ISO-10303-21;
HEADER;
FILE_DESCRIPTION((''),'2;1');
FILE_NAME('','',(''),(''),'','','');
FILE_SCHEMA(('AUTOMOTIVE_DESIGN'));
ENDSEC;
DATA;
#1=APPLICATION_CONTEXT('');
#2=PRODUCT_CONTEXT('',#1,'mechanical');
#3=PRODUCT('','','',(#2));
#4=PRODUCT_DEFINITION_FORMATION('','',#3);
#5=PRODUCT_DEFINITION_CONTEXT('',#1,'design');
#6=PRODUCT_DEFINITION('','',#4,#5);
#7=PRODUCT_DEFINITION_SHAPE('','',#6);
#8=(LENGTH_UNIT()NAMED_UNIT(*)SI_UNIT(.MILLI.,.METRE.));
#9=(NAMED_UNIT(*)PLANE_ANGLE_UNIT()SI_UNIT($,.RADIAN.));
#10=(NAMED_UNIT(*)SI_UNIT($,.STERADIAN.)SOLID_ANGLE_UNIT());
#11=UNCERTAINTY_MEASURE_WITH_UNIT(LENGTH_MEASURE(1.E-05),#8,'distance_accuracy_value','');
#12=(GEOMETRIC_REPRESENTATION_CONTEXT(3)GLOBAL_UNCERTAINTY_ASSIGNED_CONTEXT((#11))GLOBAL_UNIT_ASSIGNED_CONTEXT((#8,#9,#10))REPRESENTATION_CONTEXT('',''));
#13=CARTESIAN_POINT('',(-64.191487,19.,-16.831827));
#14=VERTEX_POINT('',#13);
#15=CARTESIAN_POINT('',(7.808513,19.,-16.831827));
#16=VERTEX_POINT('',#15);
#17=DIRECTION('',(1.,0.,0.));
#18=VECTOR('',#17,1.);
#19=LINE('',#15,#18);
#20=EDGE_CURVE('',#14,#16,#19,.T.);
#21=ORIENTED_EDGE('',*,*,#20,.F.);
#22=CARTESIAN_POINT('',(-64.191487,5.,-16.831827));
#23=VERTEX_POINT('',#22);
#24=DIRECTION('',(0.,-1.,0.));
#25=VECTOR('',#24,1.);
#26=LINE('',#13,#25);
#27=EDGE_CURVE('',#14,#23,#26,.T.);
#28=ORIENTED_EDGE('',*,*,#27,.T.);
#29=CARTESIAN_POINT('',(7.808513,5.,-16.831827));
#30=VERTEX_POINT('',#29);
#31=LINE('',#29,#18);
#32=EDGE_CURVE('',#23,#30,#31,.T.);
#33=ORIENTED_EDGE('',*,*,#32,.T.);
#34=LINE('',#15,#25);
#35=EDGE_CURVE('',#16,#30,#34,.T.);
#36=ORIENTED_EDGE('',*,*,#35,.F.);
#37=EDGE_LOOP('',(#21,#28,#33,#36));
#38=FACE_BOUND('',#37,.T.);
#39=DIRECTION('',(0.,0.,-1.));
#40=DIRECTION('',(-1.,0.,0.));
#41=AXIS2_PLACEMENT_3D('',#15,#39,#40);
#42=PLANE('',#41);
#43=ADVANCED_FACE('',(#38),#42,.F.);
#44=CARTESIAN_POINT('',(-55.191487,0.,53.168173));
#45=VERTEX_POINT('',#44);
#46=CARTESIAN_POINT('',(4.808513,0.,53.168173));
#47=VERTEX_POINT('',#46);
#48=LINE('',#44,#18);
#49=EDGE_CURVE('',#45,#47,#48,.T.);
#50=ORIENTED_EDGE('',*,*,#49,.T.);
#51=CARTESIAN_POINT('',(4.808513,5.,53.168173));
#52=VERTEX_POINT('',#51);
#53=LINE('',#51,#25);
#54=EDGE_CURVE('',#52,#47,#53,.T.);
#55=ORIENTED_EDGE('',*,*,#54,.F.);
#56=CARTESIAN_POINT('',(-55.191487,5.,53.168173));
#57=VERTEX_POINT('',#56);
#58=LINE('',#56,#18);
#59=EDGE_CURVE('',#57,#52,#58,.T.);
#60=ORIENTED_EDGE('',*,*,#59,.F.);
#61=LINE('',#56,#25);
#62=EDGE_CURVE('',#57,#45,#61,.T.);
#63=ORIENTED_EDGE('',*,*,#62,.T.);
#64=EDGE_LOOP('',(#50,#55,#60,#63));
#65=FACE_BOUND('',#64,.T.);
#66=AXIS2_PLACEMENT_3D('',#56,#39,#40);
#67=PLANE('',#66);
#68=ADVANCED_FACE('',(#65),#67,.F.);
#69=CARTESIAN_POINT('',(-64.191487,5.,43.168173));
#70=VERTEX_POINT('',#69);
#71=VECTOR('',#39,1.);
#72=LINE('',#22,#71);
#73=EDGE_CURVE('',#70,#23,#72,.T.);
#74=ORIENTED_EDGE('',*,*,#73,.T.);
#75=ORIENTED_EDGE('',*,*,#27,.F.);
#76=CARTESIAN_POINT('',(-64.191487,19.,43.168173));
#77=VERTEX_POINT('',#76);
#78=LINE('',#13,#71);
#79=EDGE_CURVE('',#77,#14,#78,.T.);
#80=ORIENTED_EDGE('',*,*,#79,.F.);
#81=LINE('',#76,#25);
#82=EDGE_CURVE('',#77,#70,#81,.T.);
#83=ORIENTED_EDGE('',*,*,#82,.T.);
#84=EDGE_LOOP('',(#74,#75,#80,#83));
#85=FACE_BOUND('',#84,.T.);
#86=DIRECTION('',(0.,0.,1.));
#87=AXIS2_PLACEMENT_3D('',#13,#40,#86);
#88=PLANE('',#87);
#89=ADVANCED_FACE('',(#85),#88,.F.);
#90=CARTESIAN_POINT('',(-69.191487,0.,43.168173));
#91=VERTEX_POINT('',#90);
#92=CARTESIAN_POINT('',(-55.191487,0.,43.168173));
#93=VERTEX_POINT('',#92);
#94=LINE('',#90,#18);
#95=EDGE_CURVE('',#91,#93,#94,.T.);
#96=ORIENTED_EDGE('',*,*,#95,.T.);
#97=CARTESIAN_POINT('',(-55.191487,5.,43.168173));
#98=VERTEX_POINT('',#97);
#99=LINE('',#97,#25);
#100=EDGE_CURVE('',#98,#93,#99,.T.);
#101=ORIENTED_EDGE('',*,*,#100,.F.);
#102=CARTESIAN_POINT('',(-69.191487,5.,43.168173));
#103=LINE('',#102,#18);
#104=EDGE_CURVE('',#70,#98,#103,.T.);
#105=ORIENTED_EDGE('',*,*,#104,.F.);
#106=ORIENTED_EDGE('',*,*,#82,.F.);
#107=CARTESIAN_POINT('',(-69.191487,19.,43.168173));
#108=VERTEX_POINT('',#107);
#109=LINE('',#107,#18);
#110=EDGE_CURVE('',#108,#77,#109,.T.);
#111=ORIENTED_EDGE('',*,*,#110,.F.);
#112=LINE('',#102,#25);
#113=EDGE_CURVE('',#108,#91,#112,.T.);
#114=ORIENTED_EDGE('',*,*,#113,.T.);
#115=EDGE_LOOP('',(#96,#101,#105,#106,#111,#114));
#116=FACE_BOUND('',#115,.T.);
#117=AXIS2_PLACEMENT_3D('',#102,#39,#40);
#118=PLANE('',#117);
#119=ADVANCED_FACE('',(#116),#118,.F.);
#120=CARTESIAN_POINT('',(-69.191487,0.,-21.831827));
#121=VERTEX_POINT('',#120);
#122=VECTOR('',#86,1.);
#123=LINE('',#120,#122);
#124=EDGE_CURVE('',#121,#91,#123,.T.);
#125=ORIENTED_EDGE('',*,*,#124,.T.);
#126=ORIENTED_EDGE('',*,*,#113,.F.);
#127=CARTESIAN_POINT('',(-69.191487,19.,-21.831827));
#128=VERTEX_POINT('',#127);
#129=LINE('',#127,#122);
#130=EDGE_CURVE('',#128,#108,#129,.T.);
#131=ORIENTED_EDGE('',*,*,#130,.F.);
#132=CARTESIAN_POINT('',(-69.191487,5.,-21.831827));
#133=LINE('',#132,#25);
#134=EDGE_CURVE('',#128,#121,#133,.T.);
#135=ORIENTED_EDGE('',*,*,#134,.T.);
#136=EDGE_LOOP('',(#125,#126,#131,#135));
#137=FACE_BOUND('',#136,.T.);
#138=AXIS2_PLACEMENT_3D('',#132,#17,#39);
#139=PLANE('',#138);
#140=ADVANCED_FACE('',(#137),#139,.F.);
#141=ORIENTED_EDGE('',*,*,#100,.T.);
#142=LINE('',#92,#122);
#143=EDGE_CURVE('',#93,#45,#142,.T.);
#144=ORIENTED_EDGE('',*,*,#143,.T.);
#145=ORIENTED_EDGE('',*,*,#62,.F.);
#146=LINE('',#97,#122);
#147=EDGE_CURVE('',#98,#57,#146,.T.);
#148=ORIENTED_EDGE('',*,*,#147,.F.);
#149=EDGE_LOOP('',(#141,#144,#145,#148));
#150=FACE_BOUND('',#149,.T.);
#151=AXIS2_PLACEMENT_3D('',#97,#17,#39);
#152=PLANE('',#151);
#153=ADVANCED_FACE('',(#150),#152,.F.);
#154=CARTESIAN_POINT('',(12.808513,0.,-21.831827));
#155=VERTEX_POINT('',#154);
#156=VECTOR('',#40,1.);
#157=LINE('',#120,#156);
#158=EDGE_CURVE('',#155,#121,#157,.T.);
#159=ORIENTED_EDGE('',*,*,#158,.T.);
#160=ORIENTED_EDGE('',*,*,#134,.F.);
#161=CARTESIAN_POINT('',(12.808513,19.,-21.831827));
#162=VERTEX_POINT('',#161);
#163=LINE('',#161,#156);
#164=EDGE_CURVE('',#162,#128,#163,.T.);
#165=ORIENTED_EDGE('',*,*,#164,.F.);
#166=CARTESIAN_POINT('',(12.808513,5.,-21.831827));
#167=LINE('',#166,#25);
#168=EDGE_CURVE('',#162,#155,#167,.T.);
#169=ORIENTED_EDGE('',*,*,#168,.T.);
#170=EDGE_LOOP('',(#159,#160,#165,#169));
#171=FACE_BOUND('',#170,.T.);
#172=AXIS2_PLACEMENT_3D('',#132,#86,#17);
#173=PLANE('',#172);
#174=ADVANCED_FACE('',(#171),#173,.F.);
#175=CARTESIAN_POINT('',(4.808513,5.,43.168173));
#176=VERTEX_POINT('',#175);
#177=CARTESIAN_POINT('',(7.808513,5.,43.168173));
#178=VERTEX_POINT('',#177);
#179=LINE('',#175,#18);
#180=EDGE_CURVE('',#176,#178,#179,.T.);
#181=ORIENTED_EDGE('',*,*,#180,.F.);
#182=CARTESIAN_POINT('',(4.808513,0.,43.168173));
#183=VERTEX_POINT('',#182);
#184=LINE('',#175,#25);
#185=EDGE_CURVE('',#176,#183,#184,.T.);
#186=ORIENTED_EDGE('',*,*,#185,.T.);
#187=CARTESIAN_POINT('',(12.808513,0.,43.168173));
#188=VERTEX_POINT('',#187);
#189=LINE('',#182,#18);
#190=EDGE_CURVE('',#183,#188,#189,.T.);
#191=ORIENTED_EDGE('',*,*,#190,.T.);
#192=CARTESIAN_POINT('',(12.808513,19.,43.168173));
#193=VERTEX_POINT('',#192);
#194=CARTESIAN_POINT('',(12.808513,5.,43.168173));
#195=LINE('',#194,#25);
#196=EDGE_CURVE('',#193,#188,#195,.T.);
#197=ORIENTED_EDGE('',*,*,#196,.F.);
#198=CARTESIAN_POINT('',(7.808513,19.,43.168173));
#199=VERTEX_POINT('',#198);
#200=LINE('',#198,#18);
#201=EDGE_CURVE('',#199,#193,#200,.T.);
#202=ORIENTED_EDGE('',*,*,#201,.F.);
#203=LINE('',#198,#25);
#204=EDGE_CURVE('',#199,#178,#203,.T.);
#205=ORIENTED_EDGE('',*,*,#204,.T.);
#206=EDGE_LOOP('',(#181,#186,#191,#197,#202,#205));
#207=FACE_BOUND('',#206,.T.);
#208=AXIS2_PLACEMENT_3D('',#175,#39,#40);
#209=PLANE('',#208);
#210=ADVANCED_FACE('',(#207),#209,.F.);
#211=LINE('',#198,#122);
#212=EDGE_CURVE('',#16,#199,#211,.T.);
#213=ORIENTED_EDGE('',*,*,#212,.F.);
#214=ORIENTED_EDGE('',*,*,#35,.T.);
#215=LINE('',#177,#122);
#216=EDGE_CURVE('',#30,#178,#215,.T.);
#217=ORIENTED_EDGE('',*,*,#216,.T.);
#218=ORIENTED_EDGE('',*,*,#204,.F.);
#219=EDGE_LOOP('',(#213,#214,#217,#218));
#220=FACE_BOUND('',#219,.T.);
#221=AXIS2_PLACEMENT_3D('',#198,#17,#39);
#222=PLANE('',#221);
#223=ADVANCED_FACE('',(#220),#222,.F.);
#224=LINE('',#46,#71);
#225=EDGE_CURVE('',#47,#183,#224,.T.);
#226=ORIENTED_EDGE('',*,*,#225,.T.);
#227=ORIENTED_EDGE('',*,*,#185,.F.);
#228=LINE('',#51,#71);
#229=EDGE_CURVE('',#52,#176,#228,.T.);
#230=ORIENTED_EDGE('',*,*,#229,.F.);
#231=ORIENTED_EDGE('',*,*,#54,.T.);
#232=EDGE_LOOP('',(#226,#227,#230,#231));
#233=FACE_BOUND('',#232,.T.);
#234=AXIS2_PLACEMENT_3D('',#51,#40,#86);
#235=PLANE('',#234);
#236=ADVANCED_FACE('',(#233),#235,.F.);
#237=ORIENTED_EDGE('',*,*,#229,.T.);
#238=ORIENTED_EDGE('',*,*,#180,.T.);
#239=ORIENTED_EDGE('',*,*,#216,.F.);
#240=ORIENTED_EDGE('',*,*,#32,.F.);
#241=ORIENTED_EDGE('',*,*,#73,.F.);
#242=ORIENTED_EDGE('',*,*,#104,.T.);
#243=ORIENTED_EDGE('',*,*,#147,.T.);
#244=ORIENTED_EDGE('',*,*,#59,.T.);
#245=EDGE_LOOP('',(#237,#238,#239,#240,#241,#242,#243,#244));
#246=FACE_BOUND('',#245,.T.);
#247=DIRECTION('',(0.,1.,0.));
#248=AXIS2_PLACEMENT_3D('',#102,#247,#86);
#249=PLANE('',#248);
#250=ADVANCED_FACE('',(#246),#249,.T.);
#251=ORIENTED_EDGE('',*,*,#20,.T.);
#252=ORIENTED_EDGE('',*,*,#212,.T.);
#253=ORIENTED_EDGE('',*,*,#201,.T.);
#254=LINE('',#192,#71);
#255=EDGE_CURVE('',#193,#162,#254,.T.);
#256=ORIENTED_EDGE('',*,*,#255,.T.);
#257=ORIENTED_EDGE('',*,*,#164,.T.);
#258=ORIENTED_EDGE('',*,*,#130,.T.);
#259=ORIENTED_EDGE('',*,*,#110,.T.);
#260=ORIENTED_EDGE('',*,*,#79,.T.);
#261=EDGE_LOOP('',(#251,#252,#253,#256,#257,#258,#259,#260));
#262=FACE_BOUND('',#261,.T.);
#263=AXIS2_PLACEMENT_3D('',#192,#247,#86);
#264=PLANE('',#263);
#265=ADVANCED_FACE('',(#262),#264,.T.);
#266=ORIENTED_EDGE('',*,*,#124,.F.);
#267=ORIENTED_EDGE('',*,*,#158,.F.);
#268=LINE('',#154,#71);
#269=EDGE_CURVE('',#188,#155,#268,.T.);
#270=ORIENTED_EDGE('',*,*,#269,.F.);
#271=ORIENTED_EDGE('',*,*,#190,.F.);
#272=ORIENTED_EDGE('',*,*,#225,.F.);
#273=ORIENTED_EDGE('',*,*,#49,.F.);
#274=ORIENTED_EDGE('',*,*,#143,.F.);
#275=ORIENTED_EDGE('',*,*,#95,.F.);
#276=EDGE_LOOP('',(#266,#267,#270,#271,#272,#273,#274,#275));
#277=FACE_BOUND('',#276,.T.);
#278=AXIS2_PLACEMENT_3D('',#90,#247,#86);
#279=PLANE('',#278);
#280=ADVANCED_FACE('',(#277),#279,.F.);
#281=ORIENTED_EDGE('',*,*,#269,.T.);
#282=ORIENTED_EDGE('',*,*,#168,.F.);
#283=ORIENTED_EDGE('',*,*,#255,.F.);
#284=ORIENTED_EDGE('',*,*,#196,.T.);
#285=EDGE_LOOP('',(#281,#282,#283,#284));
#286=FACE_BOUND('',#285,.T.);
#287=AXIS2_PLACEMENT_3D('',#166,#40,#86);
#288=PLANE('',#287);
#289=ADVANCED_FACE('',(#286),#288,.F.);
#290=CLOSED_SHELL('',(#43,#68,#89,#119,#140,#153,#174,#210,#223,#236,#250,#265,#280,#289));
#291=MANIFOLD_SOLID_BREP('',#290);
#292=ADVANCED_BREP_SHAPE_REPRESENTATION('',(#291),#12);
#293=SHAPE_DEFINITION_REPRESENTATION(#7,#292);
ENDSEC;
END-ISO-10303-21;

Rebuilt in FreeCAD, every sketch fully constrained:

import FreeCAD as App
import Part
import Sketcher

doc = App.newDocument("Part")
body = doc.addObject("PartDesign::Body", "Body")

# Sketch on XZ plane
sketch1 = doc.addObject("Sketcher::SketchObject", "Sketch")
body.addObject(sketch1)
sketch1.AttachmentSupport = (doc.XZ_Plane, [""])
sketch1.MapMode = "FlatFace"
sketch1.addGeometry([
    Part.LineSegment(App.Vector(-69, 43, 0), App.Vector(-55, 43, 0)),  # 0
    Part.LineSegment(App.Vector(-55, 43, 0), App.Vector(-55, 53, 0)),  # 1
    Part.LineSegment(App.Vector(-55, 53, 0), App.Vector(5, 53, 0)),  # 2
    Part.LineSegment(App.Vector(5, 53, 0), App.Vector(5, 43, 0)),  # 3
    Part.LineSegment(App.Vector(5, 43, 0), App.Vector(13, 43, 0)),  # 4
    Part.LineSegment(App.Vector(13, 43, 0), App.Vector(13, -22, 0)),  # 5
    Part.LineSegment(App.Vector(13, -22, 0), App.Vector(-69, -22, 0)),  # 6
    Part.LineSegment(App.Vector(-69, -22, 0), App.Vector(-69, 43, 0)),  # 7
], False)
sketch1.addConstraint([
    Sketcher.Constraint("Coincident", 0, 2, 1, 1),
    Sketcher.Constraint("Coincident", 1, 2, 2, 1),
    Sketcher.Constraint("Coincident", 2, 2, 3, 1),
    Sketcher.Constraint("Coincident", 3, 2, 4, 1),
    Sketcher.Constraint("Coincident", 4, 2, 5, 1),
    Sketcher.Constraint("Coincident", 5, 2, 6, 1),
    Sketcher.Constraint("Coincident", 6, 2, 7, 1),
    Sketcher.Constraint("Coincident", 7, 2, 0, 1),
    Sketcher.Constraint("Horizontal", 0),
    Sketcher.Constraint("Vertical", 1),
    Sketcher.Constraint("Horizontal", 2),
    Sketcher.Constraint("Vertical", 3),
    Sketcher.Constraint("Horizontal", 4),
    Sketcher.Constraint("Vertical", 5),
    Sketcher.Constraint("Horizontal", 6),
    Sketcher.Constraint("Vertical", 7),
    Sketcher.Constraint("Horizontal", 0, 2, 3, 2),
    Sketcher.Constraint("DistanceX", 0, 1, 0, 2, 14.0),
    Sketcher.Constraint("DistanceX", 2, 1, 2, 2, 60.0),
    Sketcher.Constraint("DistanceX", 4, 1, 4, 2, 8.0),
    Sketcher.Constraint("DistanceY", 1, 1, 1, 2, 10.0),
    Sketcher.Constraint("DistanceY", 5, 2, 5, 1, 65.0),
    Sketcher.Constraint("DistanceX", 0, 2, -1, 1, 55.191487),
    Sketcher.Constraint("DistanceY", -1, 1, 0, 2, 43.168173),
])
pad1 = doc.addObject("PartDesign::Pad", "Pad")
body.addObject(pad1)
pad1.Profile = sketch1
pad1.Length = 5
pad1.Reversed = True

# Sketch on XZ plane
sketch2 = doc.addObject("Sketcher::SketchObject", "Sketch001")
body.addObject(sketch2)
sketch2.AttachmentSupport = (doc.XZ_Plane, [""])
sketch2.MapMode = "FlatFace"
sketch2.AttachmentOffset = App.Placement(App.Vector(0, 0, -5), App.Rotation())
sketch2.addGeometry([
    Part.LineSegment(App.Vector(13, 43, 0), App.Vector(13, -22, 0)),  # 0
    Part.LineSegment(App.Vector(13, -22, 0), App.Vector(-69, -22, 0)),  # 1
    Part.LineSegment(App.Vector(-69, -22, 0), App.Vector(-69, 43, 0)),  # 2
    Part.LineSegment(App.Vector(-69, 43, 0), App.Vector(-64, 43, 0)),  # 3
    Part.LineSegment(App.Vector(-64, 43, 0), App.Vector(-64, -17, 0)),  # 4
    Part.LineSegment(App.Vector(-64, -17, 0), App.Vector(8, -17, 0)),  # 5
    Part.LineSegment(App.Vector(8, -17, 0), App.Vector(8, 43, 0)),  # 6
    Part.LineSegment(App.Vector(8, 43, 0), App.Vector(13, 43, 0)),  # 7
], False)
sketch2.addConstraint([
    Sketcher.Constraint("Coincident", 0, 2, 1, 1),
    Sketcher.Constraint("Coincident", 1, 2, 2, 1),
    Sketcher.Constraint("Coincident", 2, 2, 3, 1),
    Sketcher.Constraint("Coincident", 3, 2, 4, 1),
    Sketcher.Constraint("Coincident", 4, 2, 5, 1),
    Sketcher.Constraint("Coincident", 5, 2, 6, 1),
    Sketcher.Constraint("Coincident", 6, 2, 7, 1),
    Sketcher.Constraint("Coincident", 7, 2, 0, 1),
    Sketcher.Constraint("Vertical", 0),
    Sketcher.Constraint("Horizontal", 1),
    Sketcher.Constraint("Vertical", 2),
    Sketcher.Constraint("Horizontal", 3),
    Sketcher.Constraint("Vertical", 4),
    Sketcher.Constraint("Horizontal", 5),
    Sketcher.Constraint("Vertical", 6),
    Sketcher.Constraint("Horizontal", 7),
    Sketcher.Constraint("Horizontal", 3, 2, 6, 2),
    Sketcher.Constraint("Equal", 3, 7),
    Sketcher.Constraint("DistanceX", 1, 2, 1, 1, 82.0),
    Sketcher.Constraint("DistanceX", 3, 1, 3, 2, 5.0),
    Sketcher.Constraint("DistanceY", 0, 2, 0, 1, 65.0),
    Sketcher.Constraint("DistanceY", 4, 2, 4, 1, 60.0),
    Sketcher.Constraint("DistanceX", -1, 1, 0, 2, 12.808513),
    Sketcher.Constraint("DistanceY", 0, 2, -1, 1, 21.831827),
])
pad2 = doc.addObject("PartDesign::Pad", "Pad001")
body.addObject(pad2)
pad2.Profile = sketch2
pad2.Length = 14
pad2.Reversed = True

doc.recompute()
